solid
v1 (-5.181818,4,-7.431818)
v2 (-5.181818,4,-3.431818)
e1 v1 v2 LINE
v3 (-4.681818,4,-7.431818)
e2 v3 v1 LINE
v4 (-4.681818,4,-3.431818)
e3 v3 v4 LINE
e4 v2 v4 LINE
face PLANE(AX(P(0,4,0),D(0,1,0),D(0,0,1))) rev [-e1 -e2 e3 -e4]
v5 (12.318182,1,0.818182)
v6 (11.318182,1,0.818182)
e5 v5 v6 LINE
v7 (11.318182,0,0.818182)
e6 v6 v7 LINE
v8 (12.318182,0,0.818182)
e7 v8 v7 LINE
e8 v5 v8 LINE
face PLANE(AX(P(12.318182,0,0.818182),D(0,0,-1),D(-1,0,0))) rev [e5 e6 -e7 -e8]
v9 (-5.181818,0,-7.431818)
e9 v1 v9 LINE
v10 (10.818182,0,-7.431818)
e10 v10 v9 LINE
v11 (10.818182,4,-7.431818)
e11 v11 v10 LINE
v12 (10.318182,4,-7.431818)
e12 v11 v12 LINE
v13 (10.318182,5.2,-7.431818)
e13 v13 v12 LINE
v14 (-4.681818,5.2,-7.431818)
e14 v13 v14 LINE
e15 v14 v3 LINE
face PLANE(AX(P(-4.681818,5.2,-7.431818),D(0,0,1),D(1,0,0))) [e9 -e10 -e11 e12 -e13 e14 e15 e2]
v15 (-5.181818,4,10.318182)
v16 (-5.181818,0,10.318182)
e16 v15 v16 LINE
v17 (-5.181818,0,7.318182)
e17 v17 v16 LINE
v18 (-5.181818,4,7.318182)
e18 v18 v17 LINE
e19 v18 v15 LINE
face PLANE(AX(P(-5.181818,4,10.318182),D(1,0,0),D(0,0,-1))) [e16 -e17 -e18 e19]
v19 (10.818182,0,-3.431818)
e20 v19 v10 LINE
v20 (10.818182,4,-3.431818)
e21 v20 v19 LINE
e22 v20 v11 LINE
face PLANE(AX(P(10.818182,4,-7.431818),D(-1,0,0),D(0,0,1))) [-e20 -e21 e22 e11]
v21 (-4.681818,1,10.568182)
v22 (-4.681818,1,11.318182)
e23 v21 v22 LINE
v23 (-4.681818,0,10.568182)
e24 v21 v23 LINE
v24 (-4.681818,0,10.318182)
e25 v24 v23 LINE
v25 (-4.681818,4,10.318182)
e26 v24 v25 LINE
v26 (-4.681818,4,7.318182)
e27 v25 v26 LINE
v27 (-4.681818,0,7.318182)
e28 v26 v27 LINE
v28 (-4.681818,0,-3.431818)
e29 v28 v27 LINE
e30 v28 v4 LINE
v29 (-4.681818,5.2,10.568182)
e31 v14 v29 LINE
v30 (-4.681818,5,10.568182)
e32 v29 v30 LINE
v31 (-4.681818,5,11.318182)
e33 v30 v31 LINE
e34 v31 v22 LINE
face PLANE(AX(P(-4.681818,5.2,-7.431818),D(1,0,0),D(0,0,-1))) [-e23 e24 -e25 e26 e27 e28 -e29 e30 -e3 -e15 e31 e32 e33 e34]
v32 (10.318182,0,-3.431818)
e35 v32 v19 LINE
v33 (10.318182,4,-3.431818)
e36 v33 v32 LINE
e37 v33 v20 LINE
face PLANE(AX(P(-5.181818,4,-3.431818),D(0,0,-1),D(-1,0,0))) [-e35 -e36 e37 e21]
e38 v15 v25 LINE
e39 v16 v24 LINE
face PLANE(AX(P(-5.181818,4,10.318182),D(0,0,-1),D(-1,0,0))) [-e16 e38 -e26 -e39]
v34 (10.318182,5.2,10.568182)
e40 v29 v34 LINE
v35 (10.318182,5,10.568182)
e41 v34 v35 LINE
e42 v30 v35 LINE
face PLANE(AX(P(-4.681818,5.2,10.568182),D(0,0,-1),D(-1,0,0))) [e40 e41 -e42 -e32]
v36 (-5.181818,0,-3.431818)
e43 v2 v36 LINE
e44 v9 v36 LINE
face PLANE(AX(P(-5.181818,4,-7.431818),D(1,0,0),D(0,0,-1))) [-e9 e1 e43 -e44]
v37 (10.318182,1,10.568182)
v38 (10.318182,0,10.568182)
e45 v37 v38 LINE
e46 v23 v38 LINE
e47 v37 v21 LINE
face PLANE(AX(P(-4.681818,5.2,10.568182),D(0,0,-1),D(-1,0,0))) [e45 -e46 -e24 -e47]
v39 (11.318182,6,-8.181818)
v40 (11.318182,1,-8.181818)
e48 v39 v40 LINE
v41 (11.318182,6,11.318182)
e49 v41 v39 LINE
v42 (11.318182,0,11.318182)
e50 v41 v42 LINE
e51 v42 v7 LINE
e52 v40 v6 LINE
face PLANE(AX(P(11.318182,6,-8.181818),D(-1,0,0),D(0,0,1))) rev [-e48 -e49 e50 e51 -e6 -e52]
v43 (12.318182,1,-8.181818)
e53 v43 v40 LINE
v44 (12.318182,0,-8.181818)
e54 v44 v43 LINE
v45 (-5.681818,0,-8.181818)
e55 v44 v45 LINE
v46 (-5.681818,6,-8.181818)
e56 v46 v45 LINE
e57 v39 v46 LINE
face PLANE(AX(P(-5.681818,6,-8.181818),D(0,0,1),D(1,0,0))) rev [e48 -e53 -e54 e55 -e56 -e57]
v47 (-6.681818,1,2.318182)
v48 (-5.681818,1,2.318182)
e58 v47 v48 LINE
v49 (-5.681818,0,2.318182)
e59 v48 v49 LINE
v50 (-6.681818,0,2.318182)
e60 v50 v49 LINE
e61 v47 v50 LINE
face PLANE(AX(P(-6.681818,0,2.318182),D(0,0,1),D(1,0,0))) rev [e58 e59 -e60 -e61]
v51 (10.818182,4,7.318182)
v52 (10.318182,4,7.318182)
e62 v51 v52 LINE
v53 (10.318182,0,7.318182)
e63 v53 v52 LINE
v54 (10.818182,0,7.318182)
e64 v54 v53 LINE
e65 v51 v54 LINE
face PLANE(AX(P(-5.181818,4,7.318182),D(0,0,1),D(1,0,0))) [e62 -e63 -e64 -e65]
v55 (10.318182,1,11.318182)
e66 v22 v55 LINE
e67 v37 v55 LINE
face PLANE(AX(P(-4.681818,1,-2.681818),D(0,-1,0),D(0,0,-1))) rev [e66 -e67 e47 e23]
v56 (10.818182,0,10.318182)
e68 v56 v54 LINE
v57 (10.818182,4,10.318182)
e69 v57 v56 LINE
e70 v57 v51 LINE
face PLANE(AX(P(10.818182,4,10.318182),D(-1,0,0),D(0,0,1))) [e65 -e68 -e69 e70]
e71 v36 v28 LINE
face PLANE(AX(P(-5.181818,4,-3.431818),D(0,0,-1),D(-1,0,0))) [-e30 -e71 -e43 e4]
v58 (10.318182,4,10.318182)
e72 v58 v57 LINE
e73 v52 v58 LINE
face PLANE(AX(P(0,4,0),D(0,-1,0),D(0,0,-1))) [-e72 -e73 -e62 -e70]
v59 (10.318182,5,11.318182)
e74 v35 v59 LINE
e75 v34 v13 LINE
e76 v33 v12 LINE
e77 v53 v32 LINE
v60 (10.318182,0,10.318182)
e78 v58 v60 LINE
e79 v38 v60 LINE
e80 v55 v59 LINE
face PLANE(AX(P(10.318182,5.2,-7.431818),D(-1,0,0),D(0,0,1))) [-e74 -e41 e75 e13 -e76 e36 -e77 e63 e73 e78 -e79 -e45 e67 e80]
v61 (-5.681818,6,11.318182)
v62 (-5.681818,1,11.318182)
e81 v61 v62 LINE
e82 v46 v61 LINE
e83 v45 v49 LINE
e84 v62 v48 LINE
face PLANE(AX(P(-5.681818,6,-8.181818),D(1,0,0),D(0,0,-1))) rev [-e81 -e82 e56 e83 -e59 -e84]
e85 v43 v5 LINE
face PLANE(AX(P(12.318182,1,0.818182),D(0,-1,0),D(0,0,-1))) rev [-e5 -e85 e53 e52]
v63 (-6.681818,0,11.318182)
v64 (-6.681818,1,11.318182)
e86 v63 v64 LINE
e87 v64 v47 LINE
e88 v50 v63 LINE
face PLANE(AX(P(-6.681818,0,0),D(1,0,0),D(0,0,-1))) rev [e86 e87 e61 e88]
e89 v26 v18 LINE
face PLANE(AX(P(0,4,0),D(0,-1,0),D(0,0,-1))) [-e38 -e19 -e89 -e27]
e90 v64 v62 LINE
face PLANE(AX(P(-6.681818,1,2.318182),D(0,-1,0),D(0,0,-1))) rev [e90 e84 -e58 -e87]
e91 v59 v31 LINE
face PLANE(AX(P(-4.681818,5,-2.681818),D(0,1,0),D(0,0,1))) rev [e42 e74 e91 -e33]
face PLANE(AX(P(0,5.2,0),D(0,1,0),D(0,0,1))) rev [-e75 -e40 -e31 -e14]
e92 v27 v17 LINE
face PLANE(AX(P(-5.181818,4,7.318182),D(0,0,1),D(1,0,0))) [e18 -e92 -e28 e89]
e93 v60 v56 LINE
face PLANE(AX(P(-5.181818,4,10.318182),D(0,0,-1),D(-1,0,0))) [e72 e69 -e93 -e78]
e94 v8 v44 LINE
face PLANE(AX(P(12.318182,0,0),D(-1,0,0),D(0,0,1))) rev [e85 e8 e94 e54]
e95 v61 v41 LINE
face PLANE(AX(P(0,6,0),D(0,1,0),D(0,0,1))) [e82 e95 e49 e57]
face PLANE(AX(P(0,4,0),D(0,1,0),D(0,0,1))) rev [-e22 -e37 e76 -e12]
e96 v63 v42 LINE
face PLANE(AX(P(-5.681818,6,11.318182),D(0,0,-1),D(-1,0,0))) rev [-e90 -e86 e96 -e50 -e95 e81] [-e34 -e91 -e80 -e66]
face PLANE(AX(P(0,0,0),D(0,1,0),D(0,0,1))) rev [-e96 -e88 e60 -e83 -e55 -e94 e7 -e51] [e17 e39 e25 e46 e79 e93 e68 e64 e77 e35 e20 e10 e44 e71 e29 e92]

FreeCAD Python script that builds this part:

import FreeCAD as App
import Part
import Sketcher

V = App.Vector
Q = App.Units.Quantity

doc = App.newDocument("Part")
body = doc.addObject("PartDesign::Body", "Body")

sketch1 = doc.addObject("Sketcher::SketchObject", "Sketch")
body.addObject(sketch1)
sketch1.AttachmentSupport = (doc.XZ_Plane, [""])
sketch1.MapMode = "FlatFace"
sketch1.addGeometry([
    Part.LineSegment(V(-5.681818, -8.181818, 0), V(-5.681818, 11.318182, 0)),
    Part.LineSegment(V(-5.681818, 11.318182, 0), V(11.318182, 11.318182, 0)),
    Part.LineSegment(V(11.318182, 11.318182, 0), V(11.318182, -8.181818, 0)),
    Part.LineSegment(V(11.318182, -8.181818, 0), V(-5.681818, -8.181818, 0)),
], False)
sketch1.addConstraint([
    Sketcher.Constraint("Coincident", 0, 2, 1, 1),
    Sketcher.Constraint("Coincident", 1, 2, 2, 1),
    Sketcher.Constraint("Coincident", 2, 2, 3, 1),
    Sketcher.Constraint("Coincident", 3, 2, 0, 1),
    Sketcher.Constraint("Vertical", 0),
    Sketcher.Constraint("Horizontal", 1),
    Sketcher.Constraint("Vertical", 2),
    Sketcher.Constraint("Horizontal", 3),
    Sketcher.Constraint("DistanceX", 1, 1, 1, 2, Q("17 mm")),
    Sketcher.Constraint("DistanceY", 0, 1, 0, 2, Q("19.5 mm")),
    Sketcher.Constraint("DistanceX", 0, 2, -1, 1, Q("5.681818 mm")),
    Sketcher.Constraint("DistanceY", -1, 1, 0, 2, Q("11.318182 mm")),
])
pad1 = doc.addObject("PartDesign::Pad", "Pad")
body.addObject(pad1)
pad1.Profile = sketch1
pad1.Length = 6
pad1.Reversed = True

sketch2 = doc.addObject("Sketcher::SketchObject", "Sketch001")
body.addObject(sketch2)
sketch2.AttachmentSupport = (doc.XZ_Plane, [""])
sketch2.MapMode = "FlatFace"
sketch2.addGeometry([
    Part.LineSegment(V(-4.681818, -7.431818, 0), V(-4.681818, 10.568182, 0)),
    Part.LineSegment(V(-4.681818, 10.568182, 0), V(10.318182, 10.568182, 0)),
    Part.LineSegment(V(10.318182, 10.568182, 0), V(10.318182, -7.431818, 0)),
    Part.LineSegment(V(10.318182, -7.431818, 0), V(-4.681818, -7.431818, 0)),
], False)
sketch2.addConstraint([
    Sketcher.Constraint("Coincident", 0, 2, 1, 1),
    Sketcher.Constraint("Coincident", 1, 2, 2, 1),
    Sketcher.Constraint("Coincident", 2, 2, 3, 1),
    Sketcher.Constraint("Coincident", 3, 2, 0, 1),
    Sketcher.Constraint("Vertical", 0),
    Sketcher.Constraint("Horizontal", 1),
    Sketcher.Constraint("Vertical", 2),
    Sketcher.Constraint("Horizontal", 3),
    Sketcher.Constraint("DistanceX", 1, 1, 1, 2, Q("15 mm")),
    Sketcher.Constraint("DistanceY", 0, 1, 0, 2, Q("18 mm")),
    Sketcher.Constraint("DistanceX", 0, 2, -1, 1, Q("4.681818 mm")),
    Sketcher.Constraint("DistanceY", -1, 1, 0, 2, Q("10.568182 mm")),
])
pocket1 = doc.addObject("PartDesign::Pocket", "Pocket")
body.addObject(pocket1)
pocket1.Profile = sketch2
pocket1.Length = 5.2

sketch3 = doc.addObject("Sketcher::SketchObject", "Sketch002")
body.addObject(sketch3)
sketch3.AttachmentSupport = (doc.YZ_Plane, [""])
sketch3.MapMode = "FlatFace"
sketch3.AttachmentOffset = App.Placement(V(0, 0, 11.318182), App.Rotation())
sketch3.addGeometry([
    Part.LineSegment(V(1, 0.818182, 0), V(0, 0.818182, 0)),
    Part.LineSegment(V(0, 0.818182, 0), V(0, -8.181818, 0)),
    Part.LineSegment(V(0, -8.181818, 0), V(1, -8.181818, 0)),
    Part.LineSegment(V(1, -8.181818, 0), V(1, 0.818182, 0)),
], False)
sketch3.addConstraint([
    Sketcher.Constraint("Coincident", 0, 2, 1, 1),
    Sketcher.Constraint("Coincident", 1, 2, 2, 1),
    Sketcher.Constraint("Coincident", 2, 2, 3, 1),
    Sketcher.Constraint("Coincident", 3, 2, 0, 1),
    Sketcher.Constraint("Horizontal", 0),
    Sketcher.Constraint("Vertical", 1),
    Sketcher.Constraint("Horizontal", 2),
    Sketcher.Constraint("Vertical", 3),
    Sketcher.Constraint("PointOnObject", 0, 2, -2),
    Sketcher.Constraint("DistanceX", 0, 2, 0, 1, Q("1 mm")),
    Sketcher.Constraint("DistanceY", 1, 2, 1, 1, Q("9 mm")),
    Sketcher.Constraint("DistanceY", -1, 1, 0, 2, Q("0.818182 mm")),
])
pad2 = doc.addObject("PartDesign::Pad", "Pad001")
body.addObject(pad2)
pad2.Profile = sketch3
pad2.Length = 1

sketch4 = doc.addObject("Sketcher::SketchObject", "Sketch003")
body.addObject(sketch4)
sketch4.AttachmentSupport = (doc.YZ_Plane, [""])
sketch4.MapMode = "FlatFace"
sketch4.AttachmentOffset = App.Placement(V(0, 0, -5.681818), App.Rotation())
sketch4.addGeometry([
    Part.LineSegment(V(1, 2.318182, 0), V(0, 2.318182, 0)),
    Part.LineSegment(V(0, 2.318182, 0), V(0, 11.318182, 0)),
    Part.LineSegment(V(0, 11.318182, 0), V(1, 11.318182, 0)),
    Part.LineSegment(V(1, 11.318182, 0), V(1, 2.318182, 0)),
], False)
sketch4.addConstraint([
    Sketcher.Constraint("Coincident", 0, 2, 1, 1),
    Sketcher.Constraint("Coincident", 1, 2, 2, 1),
    Sketcher.Constraint("Coincident", 2, 2, 3, 1),
    Sketcher.Constraint("Coincident", 3, 2, 0, 1),
    Sketcher.Constraint("Horizontal", 0),
    Sketcher.Constraint("Vertical", 1),
    Sketcher.Constraint("Horizontal", 2),
    Sketcher.Constraint("Vertical", 3),
    Sketcher.Constraint("PointOnObject", 0, 2, -2),
    Sketcher.Constraint("DistanceX", 0, 2, 0, 1, Q("1 mm")),
    Sketcher.Constraint("DistanceY", 1, 1, 1, 2, Q("9 mm")),
    Sketcher.Constraint("DistanceY", -1, 1, 0, 2, Q("2.318182 mm")),
])
pad3 = doc.addObject("PartDesign::Pad", "Pad002")
body.addObject(pad3)
pad3.Profile = sketch4
pad3.Length = 1
pad3.Reversed = True

sketch5 = doc.addObject("Sketcher::SketchObject", "Sketch004")
body.addObject(sketch5)
sketch5.AttachmentSupport = (doc.XY_Plane, [""])
sketch5.MapMode = "FlatFace"
sketch5.AttachmentOffset = App.Placement(V(0, 0, 11.318182), App.Rotation())
sketch5.addGeometry([
    Part.LineSegment(V(-4.681818, 5, 0), V(-4.681818, 1, 0)),
    Part.LineSegment(V(-4.681818, 1, 0), V(10.318182, 1, 0)),
    Part.LineSegment(V(10.318182, 1, 0), V(10.318182, 5, 0)),
    Part.LineSegment(V(10.318182, 5, 0), V(-4.681818, 5, 0)),
], False)
sketch5.addConstraint([
    Sketcher.Constraint("Coincident", 0, 2, 1, 1),
    Sketcher.Constraint("Coincident", 1, 2, 2, 1),
    Sketcher.Constraint("Coincident", 2, 2, 3, 1),
    Sketcher.Constraint("Coincident", 3, 2, 0, 1),
    Sketcher.Constraint("Vertical", 0),
    Sketcher.Constraint("Horizontal", 1),
    Sketcher.Constraint("Vertical", 2),
    Sketcher.Constraint("Horizontal", 3),
    Sketcher.Constraint("DistanceX", 1, 1, 1, 2, Q("15 mm")),
    Sketcher.Constraint("DistanceY", 0, 2, 0, 1, Q("4 mm")),
    Sketcher.Constraint("DistanceY", -1, 1, 0, 2, Q("1 mm")),
    Sketcher.Constraint("DistanceX", 0, 2, -1, 1, Q("4.681818 mm")),
])
pocket2 = doc.addObject("PartDesign::Pocket", "Pocket001")
body.addObject(pocket2)
pocket2.Profile = sketch5
pocket2.Length = 14

sketch6 = doc.addObject("Sketcher::SketchObject", "Sketch005")
body.addObject(sketch6)
sketch6.AttachmentSupport = (doc.XZ_Plane, [""])
sketch6.MapMode = "FlatFace"
sketch6.addGeometry([
    Part.LineSegment(V(-5.181818, -7.431818, 0), V(-5.181818, -3.431818, 0)),
    Part.LineSegment(V(-5.181818, -3.431818, 0), V(10.818182, -3.431818, 0)),
    Part.LineSegment(V(10.818182, -3.431818, 0), V(10.818182, -7.431818, 0)),
    Part.LineSegment(V(10.818182, -7.431818, 0), V(-5.181818, -7.431818, 0)),
    Part.LineSegment(V(-5.181818, 7.318182, 0), V(-5.181818, 10.318182, 0)),
    Part.LineSegment(V(-5.181818, 10.318182, 0), V(10.818182, 10.318182, 0)),
    Part.LineSegment(V(10.818182, 10.318182, 0), V(10.818182, 7.318182, 0)),
    Part.LineSegment(V(10.818182, 7.318182, 0), V(-5.181818, 7.318182, 0)),
], False)
sketch6.addConstraint([
    Sketcher.Constraint("Coincident", 0, 2, 1, 1),
    Sketcher.Constraint("Coincident", 1, 2, 2, 1),
    Sketcher.Constraint("Coincident", 2, 2, 3, 1),
    Sketcher.Constraint("Coincident", 3, 2, 0, 1),
    Sketcher.Constraint("Coincident", 4, 2, 5, 1),
    Sketcher.Constraint("Coincident", 5, 2, 6, 1),
    Sketcher.Constraint("Coincident", 6, 2, 7, 1),
    Sketcher.Constraint("Coincident", 7, 2, 4, 1),
    Sketcher.Constraint("Vertical", 0),
    Sketcher.Constraint("Horizontal", 1),
    Sketcher.Constraint("Vertical", 2),
    Sketcher.Constraint("Horizontal", 3),
    Sketcher.Constraint("Vertical", 4),
    Sketcher.Constraint("Horizontal", 5),
    Sketcher.Constraint("Vertical", 6),
    Sketcher.Constraint("Horizontal", 7),
    Sketcher.Constraint("Vertical", 3, 2, 4, 2),
    Sketcher.Constraint("Vertical", 2, 2, 5, 2),
    Sketcher.Constraint("DistanceX", 1, 1, 1, 2, Q("16 mm")),
    Sketcher.Constraint("DistanceY", 0, 1, 0, 2, Q("4 mm")),
    Sketcher.Constraint("DistanceY", 4, 1, 4, 2, Q("3 mm")),
    Sketcher.Constraint("DistanceY", 0, 2, 4, 2, Q("13.75 mm")),
    Sketcher.Constraint("DistanceX", 0, 2, -1, 1, Q("5.181818 mm")),
    Sketcher.Constraint("DistanceY", 0, 2, -1, 1, Q("3.431818 mm")),
])
pocket3 = doc.addObject("PartDesign::Pocket", "Pocket002")
body.addObject(pocket3)
pocket3.Profile = sketch6
pocket3.Length = 4

doc.recompute()
